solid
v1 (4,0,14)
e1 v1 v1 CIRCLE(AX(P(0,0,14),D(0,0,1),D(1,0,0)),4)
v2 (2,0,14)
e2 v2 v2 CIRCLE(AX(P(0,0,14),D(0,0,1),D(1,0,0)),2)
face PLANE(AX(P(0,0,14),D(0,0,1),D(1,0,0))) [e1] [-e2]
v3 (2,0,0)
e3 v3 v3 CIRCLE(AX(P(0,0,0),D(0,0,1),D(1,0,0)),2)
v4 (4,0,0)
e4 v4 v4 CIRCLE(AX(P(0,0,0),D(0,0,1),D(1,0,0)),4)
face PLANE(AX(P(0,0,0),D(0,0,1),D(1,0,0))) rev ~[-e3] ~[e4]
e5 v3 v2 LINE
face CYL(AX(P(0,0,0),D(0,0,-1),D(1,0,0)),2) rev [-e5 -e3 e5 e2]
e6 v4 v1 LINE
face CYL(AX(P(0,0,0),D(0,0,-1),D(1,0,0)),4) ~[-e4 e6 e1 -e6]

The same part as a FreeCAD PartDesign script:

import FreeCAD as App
import Part
import Sketcher

V = App.Vector

doc = App.newDocument("Part")
body = doc.addObject("PartDesign::Body", "Body")

# Sketch on XY plane
sketch1 = body.newObject("Sketcher::SketchObject", "Sketch")
sketch1.AttachmentSupport = (doc.getObject("XY_Plane"), [""])
sketch1.MapMode = "FlatFace"
sketch1.addGeometry([
    Part.Circle(V(0, 0, 0), V(0, 0, 1), 4),
    Part.Circle(V(0, 0, 0), V(0, 0, 1), 2),
], False)
sketch1.addConstraint([
    Sketcher.Constraint("Coincident", 0, 3, -1, 1),
    Sketcher.Constraint("Coincident", 1, 3, -1, 1),
    Sketcher.Constraint("Diameter", 0, 8.0),
    Sketcher.Constraint("Diameter", 1, 4.0),
])
pad1 = body.newObject("PartDesign::Pad", "Pad")
pad1.Profile = sketch1
pad1.Length = 14

doc.recompute()
